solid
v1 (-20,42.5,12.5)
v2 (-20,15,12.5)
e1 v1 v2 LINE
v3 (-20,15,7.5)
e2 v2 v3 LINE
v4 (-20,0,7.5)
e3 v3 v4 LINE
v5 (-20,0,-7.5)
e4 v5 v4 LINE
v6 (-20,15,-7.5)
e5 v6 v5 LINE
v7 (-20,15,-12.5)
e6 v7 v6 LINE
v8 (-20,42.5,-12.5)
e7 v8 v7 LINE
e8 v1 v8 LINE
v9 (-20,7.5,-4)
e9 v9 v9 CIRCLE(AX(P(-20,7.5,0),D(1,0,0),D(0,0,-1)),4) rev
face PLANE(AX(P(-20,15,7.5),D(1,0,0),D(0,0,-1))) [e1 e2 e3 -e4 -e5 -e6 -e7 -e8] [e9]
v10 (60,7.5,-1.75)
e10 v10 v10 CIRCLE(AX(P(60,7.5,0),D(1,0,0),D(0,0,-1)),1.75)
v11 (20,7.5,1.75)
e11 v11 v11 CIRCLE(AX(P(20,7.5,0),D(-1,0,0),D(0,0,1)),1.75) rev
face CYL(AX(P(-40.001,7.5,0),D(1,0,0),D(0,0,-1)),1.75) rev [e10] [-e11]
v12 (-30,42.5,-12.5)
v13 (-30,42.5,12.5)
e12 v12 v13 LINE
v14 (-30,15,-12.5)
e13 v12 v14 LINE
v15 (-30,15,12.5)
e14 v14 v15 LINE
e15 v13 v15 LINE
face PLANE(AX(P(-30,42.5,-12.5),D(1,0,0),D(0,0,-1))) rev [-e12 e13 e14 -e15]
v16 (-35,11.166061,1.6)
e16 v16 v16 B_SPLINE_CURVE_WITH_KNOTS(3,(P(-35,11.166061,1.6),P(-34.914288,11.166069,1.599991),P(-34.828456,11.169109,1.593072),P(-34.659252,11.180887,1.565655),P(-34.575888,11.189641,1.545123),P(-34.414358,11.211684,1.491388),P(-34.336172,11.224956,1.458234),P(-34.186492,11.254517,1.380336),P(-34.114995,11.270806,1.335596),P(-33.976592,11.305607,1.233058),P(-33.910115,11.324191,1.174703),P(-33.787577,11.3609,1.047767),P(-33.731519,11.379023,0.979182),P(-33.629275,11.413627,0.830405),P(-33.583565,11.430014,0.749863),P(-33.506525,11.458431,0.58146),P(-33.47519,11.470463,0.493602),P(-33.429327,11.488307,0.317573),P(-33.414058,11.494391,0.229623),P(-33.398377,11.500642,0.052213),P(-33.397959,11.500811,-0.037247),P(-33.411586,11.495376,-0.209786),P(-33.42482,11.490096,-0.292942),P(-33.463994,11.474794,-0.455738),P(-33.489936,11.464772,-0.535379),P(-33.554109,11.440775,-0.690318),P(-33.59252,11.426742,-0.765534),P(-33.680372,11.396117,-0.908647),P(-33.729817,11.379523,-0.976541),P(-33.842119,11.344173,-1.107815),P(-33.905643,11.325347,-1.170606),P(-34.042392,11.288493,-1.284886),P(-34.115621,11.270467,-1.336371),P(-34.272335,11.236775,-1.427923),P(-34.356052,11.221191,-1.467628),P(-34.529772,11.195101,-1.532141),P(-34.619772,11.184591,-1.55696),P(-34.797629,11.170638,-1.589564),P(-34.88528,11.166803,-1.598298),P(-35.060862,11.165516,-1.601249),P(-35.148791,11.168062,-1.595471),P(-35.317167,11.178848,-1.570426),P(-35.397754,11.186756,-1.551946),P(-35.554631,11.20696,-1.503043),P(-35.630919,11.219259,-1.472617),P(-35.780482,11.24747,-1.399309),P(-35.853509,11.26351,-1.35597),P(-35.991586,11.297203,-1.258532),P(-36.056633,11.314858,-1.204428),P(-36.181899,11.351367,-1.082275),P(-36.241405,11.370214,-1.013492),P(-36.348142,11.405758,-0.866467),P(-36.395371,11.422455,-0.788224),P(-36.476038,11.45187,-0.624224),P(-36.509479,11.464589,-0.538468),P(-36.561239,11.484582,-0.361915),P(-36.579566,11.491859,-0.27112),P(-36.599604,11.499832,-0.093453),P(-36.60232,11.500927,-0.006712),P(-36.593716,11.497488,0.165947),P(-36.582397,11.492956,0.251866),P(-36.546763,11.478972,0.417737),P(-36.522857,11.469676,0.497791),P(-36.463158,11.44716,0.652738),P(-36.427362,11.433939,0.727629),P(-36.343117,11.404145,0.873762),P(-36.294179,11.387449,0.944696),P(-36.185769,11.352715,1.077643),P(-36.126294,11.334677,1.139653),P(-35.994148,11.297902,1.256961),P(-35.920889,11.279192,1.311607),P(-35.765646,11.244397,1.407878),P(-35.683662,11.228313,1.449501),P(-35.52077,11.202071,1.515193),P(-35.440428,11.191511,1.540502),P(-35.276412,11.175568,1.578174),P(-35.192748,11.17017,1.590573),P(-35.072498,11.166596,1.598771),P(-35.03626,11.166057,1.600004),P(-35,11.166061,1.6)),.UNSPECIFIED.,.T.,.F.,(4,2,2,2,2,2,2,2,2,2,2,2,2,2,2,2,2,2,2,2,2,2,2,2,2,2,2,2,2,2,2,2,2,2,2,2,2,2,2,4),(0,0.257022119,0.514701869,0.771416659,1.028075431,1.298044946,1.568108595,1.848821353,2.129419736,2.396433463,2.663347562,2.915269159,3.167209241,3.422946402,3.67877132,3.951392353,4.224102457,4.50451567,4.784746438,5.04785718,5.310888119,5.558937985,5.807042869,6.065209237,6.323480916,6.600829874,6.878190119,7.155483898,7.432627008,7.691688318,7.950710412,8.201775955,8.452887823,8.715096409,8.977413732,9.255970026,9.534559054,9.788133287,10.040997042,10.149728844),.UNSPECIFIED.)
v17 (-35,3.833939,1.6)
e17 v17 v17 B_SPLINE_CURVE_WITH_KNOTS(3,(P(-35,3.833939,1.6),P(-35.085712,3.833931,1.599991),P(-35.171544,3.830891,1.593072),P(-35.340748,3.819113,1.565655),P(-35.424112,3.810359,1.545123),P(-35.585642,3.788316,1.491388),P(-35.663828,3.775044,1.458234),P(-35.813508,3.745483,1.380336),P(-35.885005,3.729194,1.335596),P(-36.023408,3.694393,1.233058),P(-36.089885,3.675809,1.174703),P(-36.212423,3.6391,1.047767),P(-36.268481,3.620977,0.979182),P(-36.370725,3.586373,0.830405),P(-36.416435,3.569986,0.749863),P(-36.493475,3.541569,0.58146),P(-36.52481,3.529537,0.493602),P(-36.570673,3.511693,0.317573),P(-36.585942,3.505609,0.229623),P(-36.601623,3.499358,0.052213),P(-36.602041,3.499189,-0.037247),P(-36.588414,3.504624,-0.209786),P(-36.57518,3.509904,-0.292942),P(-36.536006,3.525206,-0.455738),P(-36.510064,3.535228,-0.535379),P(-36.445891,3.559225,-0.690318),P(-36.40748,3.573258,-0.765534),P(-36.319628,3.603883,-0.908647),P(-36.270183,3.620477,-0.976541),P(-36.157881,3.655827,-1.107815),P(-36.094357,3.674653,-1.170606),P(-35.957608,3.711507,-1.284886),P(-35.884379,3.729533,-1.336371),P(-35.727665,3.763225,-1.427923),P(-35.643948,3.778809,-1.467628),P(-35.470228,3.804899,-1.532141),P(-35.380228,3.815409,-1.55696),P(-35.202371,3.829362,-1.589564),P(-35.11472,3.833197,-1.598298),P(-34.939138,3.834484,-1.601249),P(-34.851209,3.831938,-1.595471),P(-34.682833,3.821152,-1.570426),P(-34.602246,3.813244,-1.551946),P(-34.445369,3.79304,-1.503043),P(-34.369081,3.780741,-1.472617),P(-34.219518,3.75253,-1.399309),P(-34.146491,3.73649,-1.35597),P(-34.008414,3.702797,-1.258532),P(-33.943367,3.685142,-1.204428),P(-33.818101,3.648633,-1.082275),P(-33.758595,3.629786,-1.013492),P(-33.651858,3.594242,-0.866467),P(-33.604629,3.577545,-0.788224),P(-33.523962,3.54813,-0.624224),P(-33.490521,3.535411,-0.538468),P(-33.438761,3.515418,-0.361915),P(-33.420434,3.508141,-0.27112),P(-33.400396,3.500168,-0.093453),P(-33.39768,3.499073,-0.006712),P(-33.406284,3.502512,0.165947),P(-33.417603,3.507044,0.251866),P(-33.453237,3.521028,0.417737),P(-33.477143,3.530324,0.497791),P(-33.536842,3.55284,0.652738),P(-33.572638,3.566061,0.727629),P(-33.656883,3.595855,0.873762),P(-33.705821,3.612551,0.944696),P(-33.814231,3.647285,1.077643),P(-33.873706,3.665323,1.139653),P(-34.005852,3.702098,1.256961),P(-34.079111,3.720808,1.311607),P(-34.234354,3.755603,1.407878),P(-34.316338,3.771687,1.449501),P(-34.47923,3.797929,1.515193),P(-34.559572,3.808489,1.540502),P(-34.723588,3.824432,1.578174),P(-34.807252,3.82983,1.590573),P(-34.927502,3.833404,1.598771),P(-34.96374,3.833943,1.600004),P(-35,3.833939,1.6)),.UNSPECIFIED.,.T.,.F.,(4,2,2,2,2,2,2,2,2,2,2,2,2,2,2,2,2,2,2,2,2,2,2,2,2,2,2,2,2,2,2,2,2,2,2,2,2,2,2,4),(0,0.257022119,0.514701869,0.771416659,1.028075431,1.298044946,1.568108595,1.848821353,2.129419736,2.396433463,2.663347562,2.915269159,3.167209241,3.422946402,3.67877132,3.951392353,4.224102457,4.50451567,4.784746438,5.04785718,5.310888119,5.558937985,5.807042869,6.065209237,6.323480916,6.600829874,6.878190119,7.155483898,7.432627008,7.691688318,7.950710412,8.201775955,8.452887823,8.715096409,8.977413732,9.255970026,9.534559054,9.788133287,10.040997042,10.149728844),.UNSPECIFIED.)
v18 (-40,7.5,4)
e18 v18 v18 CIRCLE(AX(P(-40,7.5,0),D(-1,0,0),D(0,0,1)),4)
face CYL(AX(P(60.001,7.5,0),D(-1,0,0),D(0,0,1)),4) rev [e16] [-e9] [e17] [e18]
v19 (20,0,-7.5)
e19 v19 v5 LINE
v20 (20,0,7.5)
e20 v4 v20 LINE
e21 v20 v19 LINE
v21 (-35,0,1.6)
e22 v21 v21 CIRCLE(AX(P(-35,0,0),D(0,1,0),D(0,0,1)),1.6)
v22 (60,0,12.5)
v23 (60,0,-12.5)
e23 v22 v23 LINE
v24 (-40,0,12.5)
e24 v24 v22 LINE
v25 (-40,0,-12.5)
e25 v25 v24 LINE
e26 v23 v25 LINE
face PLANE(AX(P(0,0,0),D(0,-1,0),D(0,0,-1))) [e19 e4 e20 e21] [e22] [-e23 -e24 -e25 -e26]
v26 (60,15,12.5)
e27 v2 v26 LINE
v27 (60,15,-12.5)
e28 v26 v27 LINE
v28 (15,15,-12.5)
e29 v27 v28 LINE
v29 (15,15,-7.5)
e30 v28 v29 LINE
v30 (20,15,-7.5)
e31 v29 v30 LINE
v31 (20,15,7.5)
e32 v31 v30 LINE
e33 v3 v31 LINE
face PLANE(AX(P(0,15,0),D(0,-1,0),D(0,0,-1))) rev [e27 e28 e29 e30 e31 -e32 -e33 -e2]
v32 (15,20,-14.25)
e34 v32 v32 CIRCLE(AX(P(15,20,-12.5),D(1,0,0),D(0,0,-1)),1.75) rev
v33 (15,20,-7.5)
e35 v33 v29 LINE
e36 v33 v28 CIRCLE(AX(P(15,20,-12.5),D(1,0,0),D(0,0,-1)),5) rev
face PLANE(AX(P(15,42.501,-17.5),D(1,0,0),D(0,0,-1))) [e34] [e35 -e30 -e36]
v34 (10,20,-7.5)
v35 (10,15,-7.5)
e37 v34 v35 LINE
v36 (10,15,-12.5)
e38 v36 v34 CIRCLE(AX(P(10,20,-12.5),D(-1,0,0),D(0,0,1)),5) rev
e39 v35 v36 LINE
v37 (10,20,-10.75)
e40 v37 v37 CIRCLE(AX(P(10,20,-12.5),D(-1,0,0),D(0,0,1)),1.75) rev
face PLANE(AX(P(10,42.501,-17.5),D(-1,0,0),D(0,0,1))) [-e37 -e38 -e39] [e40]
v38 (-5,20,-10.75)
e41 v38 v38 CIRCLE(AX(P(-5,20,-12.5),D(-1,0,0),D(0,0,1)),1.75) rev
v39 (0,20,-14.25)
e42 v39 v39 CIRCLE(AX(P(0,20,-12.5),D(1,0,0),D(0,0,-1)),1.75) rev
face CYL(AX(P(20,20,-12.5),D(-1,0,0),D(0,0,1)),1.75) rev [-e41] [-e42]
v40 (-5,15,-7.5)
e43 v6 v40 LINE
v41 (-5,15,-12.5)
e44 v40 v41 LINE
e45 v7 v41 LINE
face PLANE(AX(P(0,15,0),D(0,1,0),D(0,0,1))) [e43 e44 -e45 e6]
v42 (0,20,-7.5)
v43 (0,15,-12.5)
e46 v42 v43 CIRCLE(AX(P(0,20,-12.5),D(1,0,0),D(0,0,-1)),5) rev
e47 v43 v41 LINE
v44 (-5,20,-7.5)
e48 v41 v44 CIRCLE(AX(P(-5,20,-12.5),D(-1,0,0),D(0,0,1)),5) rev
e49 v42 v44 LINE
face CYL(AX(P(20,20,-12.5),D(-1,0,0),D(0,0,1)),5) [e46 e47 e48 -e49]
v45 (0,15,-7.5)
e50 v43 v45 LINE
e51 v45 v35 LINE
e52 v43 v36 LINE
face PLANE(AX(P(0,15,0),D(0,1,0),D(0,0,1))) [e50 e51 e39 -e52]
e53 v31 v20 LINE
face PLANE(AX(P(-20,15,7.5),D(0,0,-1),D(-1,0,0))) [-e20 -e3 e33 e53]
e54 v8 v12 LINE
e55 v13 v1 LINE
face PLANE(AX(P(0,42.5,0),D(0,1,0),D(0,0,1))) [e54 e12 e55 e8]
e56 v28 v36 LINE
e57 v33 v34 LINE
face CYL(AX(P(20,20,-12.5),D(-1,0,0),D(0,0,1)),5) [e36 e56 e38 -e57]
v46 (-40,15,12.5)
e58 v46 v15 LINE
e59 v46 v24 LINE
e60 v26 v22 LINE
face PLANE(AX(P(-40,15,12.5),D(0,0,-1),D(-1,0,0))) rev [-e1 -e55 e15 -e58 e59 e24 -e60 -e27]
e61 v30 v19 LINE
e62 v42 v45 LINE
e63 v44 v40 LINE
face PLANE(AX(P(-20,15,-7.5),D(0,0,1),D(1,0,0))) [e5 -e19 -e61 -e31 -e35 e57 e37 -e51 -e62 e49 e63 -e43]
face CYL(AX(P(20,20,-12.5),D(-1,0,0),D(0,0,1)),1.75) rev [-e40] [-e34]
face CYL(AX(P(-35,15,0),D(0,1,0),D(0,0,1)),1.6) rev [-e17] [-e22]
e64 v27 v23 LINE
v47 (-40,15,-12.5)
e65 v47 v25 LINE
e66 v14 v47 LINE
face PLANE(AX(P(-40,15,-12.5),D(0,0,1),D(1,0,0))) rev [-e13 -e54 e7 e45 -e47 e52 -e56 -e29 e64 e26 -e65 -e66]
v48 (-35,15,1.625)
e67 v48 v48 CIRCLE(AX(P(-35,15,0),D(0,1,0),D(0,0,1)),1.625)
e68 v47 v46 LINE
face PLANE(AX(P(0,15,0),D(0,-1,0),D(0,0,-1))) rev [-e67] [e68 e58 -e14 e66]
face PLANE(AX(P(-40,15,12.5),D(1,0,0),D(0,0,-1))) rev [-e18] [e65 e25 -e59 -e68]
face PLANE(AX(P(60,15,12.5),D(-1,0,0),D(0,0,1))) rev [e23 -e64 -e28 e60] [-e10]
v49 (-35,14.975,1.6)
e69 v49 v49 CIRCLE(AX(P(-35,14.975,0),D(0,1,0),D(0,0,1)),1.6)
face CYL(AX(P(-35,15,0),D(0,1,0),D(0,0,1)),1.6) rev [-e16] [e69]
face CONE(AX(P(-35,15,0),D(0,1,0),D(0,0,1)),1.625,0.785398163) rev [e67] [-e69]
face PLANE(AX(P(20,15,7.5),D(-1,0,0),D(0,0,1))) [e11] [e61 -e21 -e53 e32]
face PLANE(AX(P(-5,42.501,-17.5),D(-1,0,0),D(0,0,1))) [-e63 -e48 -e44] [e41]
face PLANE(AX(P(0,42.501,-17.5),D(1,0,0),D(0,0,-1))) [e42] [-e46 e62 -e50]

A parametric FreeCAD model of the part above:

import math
import FreeCAD as App
import Part
import Sketcher

V = App.Vector
Q = App.Units.Quantity

doc = App.newDocument("Part")
body = doc.addObject("PartDesign::Body", "Body")

sketch1 = body.newObject("Sketcher::SketchObject", "Sketch")
sketch1.AttachmentSupport = (doc.getObject("XZ_Plane"), [""])
sketch1.MapMode = "FlatFace"
sketch1.addGeometry([
    Part.LineSegment(V(-40, -12.5, 0), V(-40, 12.5, 0)),
    Part.LineSegment(V(-40, 12.5, 0), V(60, 12.5, 0)),
    Part.LineSegment(V(60, 12.5, 0), V(60, -12.5, 0)),
    Part.LineSegment(V(60, -12.5, 0), V(-40, -12.5, 0)),
    Part.LineSegment(V(20, 7.5, 0), V(-20, 7.5, 0)),
    Part.LineSegment(V(-20, 7.5, 0), V(-20, -7.5, 0)),
    Part.LineSegment(V(-20, -7.5, 0), V(20, -7.5, 0)),
    Part.LineSegment(V(20, -7.5, 0), V(20, 7.5, 0)),
], False)
sketch1.addConstraint([
    Sketcher.Constraint("Coincident", 0, 2, 1, 1),
    Sketcher.Constraint("Coincident", 1, 2, 2, 1),
    Sketcher.Constraint("Coincident", 2, 2, 3, 1),
    Sketcher.Constraint("Coincident", 3, 2, 0, 1),
    Sketcher.Constraint("Coincident", 4, 2, 5, 1),
    Sketcher.Constraint("Coincident", 5, 2, 6, 1),
    Sketcher.Constraint("Coincident", 6, 2, 7, 1),
    Sketcher.Constraint("Coincident", 7, 2, 4, 1),
    Sketcher.Constraint("Vertical", 0),
    Sketcher.Constraint("Horizontal", 1),
    Sketcher.Constraint("Vertical", 2),
    Sketcher.Constraint("Horizontal", 3),
    Sketcher.Constraint("Horizontal", 4),
    Sketcher.Constraint("Vertical", 5),
    Sketcher.Constraint("Horizontal", 6),
    Sketcher.Constraint("Vertical", 7),
    Sketcher.Constraint("Symmetric", 4, 2, 6, 2, -1, 1),
    Sketcher.Constraint("DistanceX", 1, 1, 1, 2, Q("100 mm")),
    Sketcher.Constraint("DistanceX", 4, 2, 4, 1, Q("40 mm")),
    Sketcher.Constraint("DistanceY", 0, 1, 0, 2, Q("25 mm")),
    Sketcher.Constraint("DistanceY", 5, 2, 5, 1, Q("15 mm")),
    Sketcher.Constraint("DistanceX", 0, 2, -1, 1, Q("40 mm")),
    Sketcher.Constraint("DistanceY", 4, 2, 0, 2, Q("5 mm")),
])
pad1 = body.newObject("PartDesign::Pad", "Pad")
pad1.Profile = sketch1
pad1.Length = 15
pad1.Reversed = True

sketch2 = body.newObject("Sketcher::SketchObject", "Sketch001")
sketch2.AttachmentSupport = (doc.getObject("YZ_Plane"), [""])
sketch2.MapMode = "FlatFace"
sketch2.AttachmentOffset = App.Placement(V(0, 0, 60), App.Rotation())
sketch2.addGeometry(Part.Circle(V(7.5, 0, 0), V(0, 0, 1), 1.75), False)
sketch2.addConstraint([
    Sketcher.Constraint("PointOnObject", 0, 3, -1),
    Sketcher.Constraint("Diameter", 0, Q("3.5 mm")),
    Sketcher.Constraint("DistanceX", -1, 1, 0, 3, Q("7.5 mm")),
])
pocket1 = body.newObject("PartDesign::Pocket", "Pocket")
pocket1.Profile = sketch2
pocket1.Type = "UpToFirst"

sketch3 = body.newObject("Sketcher::SketchObject", "Sketch002")
sketch3.AttachmentSupport = (doc.getObject("YZ_Plane"), [""])
sketch3.MapMode = "FlatFace"
sketch3.AttachmentOffset = App.Placement(V(0, 0, -40), App.Rotation())
sketch3.addGeometry(Part.Circle(V(7.5, 0, 0), V(0, 0, 1), 4), False)
sketch3.addConstraint([
    Sketcher.Constraint("PointOnObject", 0, 3, -1),
    Sketcher.Constraint("Diameter", 0, Q("8 mm")),
    Sketcher.Constraint("DistanceX", -1, 1, 0, 3, Q("7.5 mm")),
])
pocket2 = body.newObject("PartDesign::Pocket", "Pocket001")
pocket2.Profile = sketch3
pocket2.Type = "UpToFirst"
pocket2.Reversed = True

sketch4 = body.newObject("Sketcher::SketchObject", "Sketch003")
sketch4.AttachmentSupport = (doc.getObject("XZ_Plane"), [""])
sketch4.MapMode = "FlatFace"
sketch4.AttachmentOffset = App.Placement(V(0, 0, -15), App.Rotation())
sketch4.addGeometry(Part.Circle(V(-35, 0, 0), V(0, 0, 1), 1.6), False)
sketch4.addConstraint([
    Sketcher.Constraint("PointOnObject", 0, 3, -1),
    Sketcher.Constraint("Diameter", 0, Q("3.2 mm")),
    Sketcher.Constraint("DistanceX", 0, 3, -1, 1, Q("35 mm")),
])
doc.recompute()
hole = body.newObject("PartDesign::Hole", "Hole")
hole.Profile = sketch4
hole.ThreadType = "None"
hole.Diameter = 3.2
hole.DepthType = "ThroughAll"
hole.HoleCutType = "Countersink"
hole.HoleCutDiameter = 3.25
hole.HoleCutCountersinkAngle = 90
hole.Reversed = True

sketch5 = body.newObject("Sketcher::SketchObject", "Sketch004")
sketch5.AttachmentSupport = (doc.getObject("XZ_Plane"), [""])
sketch5.MapMode = "FlatFace"
sketch5.AttachmentOffset = App.Placement(V(0, 0, -15), App.Rotation())
sketch5.addGeometry([
    Part.LineSegment(V(-30, -12.5, 0), V(-30, 12.5, 0)),
    Part.LineSegment(V(-30, 12.5, 0), V(-20, 12.5, 0)),
    Part.LineSegment(V(-20, 12.5, 0), V(-20, -12.5, 0)),
    Part.LineSegment(V(-20, -12.5, 0), V(-30, -12.5, 0)),
], False)
sketch5.addConstraint([
    Sketcher.Constraint("Coincident", 0, 2, 1, 1),
    Sketcher.Constraint("Coincident", 1, 2, 2, 1),
    Sketcher.Constraint("Coincident", 2, 2, 3, 1),
    Sketcher.Constraint("Coincident", 3, 2, 0, 1),
    Sketcher.Constraint("Vertical", 0),
    Sketcher.Constraint("Horizontal", 1),
    Sketcher.Constraint("Vertical", 2),
    Sketcher.Constraint("Horizontal", 3),
    Sketcher.Constraint("DistanceX", 1, 1, 1, 2, Q("10 mm")),
    Sketcher.Constraint("DistanceY", 0, 1, 0, 2, Q("25 mm")),
    Sketcher.Constraint("DistanceX", 0, 2, -1, 1, Q("30 mm")),
    Sketcher.Constraint("DistanceY", -1, 1, 0, 2, Q("12.5 mm")),
])
pad2 = body.newObject("PartDesign::Pad", "Pad001")
pad2.Profile = sketch5
pad2.Length = 27.5
pad2.Reversed = True

sketch6 = body.newObject("Sketcher::SketchObject", "Sketch005")
sketch6.AttachmentSupport = (doc.getObject("YZ_Plane"), [""])
sketch6.MapMode = "FlatFace"
sketch6.AttachmentOffset = App.Placement(V(0, 0, -20), App.Rotation())
sketch6.addGeometry([
    Part.LineSegment(V(20, -7.5, 0), V(15, -7.5, 0)),
    Part.LineSegment(V(15, -7.5, 0), V(15, -12.5, 0)),
    Part.ArcOfCircle(Part.Circle(V(20, -12.5, 0), V(0, 0, 1), 5), math.radians(180), math.radians(450)),
    Part.Circle(V(20, -12.5, 0), V(0, 0, 1), 1.75),
], False)
sketch6.addConstraint([
    Sketcher.Constraint("Coincident", 0, 2, 1, 1),
    Sketcher.Constraint("Tangent", 1, 2, 2, 1),
    Sketcher.Constraint("Tangent", 2, 2, 0, 1),
    Sketcher.Constraint("Horizontal", 0),
    Sketcher.Constraint("Vertical", 1),
    Sketcher.Constraint("Coincident", 3, 3, 2, 3),
    Sketcher.Constraint("Radius", 2, Q("5 mm")),
    Sketcher.Constraint("Diameter", 3, Q("3.5 mm")),
    Sketcher.Constraint("DistanceX", -1, 1, 2, 3, Q("20 mm")),
    Sketcher.Constraint("DistanceY", 2, 3, -1, 1, Q("12.5 mm")),
])
pad3 = body.newObject("PartDesign::Pad", "Pad002")
pad3.Profile = sketch6
pad3.Length = 40

sketch7 = body.newObject("Sketcher::SketchObject", "Sketch006")
sketch7.AttachmentSupport = (doc.getObject("XZ_Plane"), [""])
sketch7.MapMode = "FlatFace"
sketch7.AttachmentOffset = App.Placement(V(0, 0, -15), App.Rotation())
sketch7.addGeometry([
    Part.LineSegment(V(-20, -17.5, 0), V(-20, -7.5, 0)),
    Part.LineSegment(V(-20, -7.5, 0), V(-5, -7.5, 0)),
    Part.LineSegment(V(-5, -7.5, 0), V(-5, -17.5, 0)),
    Part.LineSegment(V(-5, -17.5, 0), V(-20, -17.5, 0)),
], False)
sketch7.addConstraint([
    Sketcher.Constraint("Coincident", 0, 2, 1, 1),
    Sketcher.Constraint("Coincident", 1, 2, 2, 1),
    Sketcher.Constraint("Coincident", 2, 2, 3, 1),
    Sketcher.Constraint("Coincident", 3, 2, 0, 1),
    Sketcher.Constraint("Vertical", 0),
    Sketcher.Constraint("Horizontal", 1),
    Sketcher.Constraint("Vertical", 2),
    Sketcher.Constraint("Horizontal", 3),
    Sketcher.Constraint("DistanceX", 1, 1, 1, 2, Q("15 mm")),
    Sketcher.Constraint("DistanceY", 0, 1, 0, 2, Q("10 mm")),
    Sketcher.Constraint("DistanceX", 0, 2, -1, 1, Q("20 mm")),
    Sketcher.Constraint("DistanceY", 0, 2, -1, 1, Q("7.5 mm")),
])
pocket3 = body.newObject("PartDesign::Pocket", "Pocket002")
pocket3.Profile = sketch7
pocket3.Type = "UpToFirst"

sketch8 = body.newObject("Sketcher::SketchObject", "Sketch007")
sketch8.AttachmentSupport = (doc.getObject("XZ_Plane"), [""])
sketch8.MapMode = "FlatFace"
sketch8.AttachmentOffset = App.Placement(V(0, 0, -15), App.Rotation())
sketch8.addGeometry([
    Part.LineSegment(V(0, -17.5, 0), V(0, -7.5, 0)),
    Part.LineSegment(V(0, -7.5, 0), V(10, -7.5, 0)),
    Part.LineSegment(V(10, -7.5, 0), V(10, -17.5, 0)),
    Part.LineSegment(V(10, -17.5, 0), V(0, -17.5, 0)),
], False)
sketch8.addConstraint([
    Sketcher.Constraint("Coincident", 0, 2, 1, 1),
    Sketcher.Constraint("Coincident", 1, 2, 2, 1),
    Sketcher.Constraint("Coincident", 2, 2, 3, 1),
    Sketcher.Constraint("Coincident", 3, 2, 0, 1),
    Sketcher.Constraint("Vertical", 0),
    Sketcher.Constraint("Horizontal", 1),
    Sketcher.Constraint("Vertical", 2),
    Sketcher.Constraint("Horizontal", 3),
    Sketcher.Constraint("PointOnObject", 0, 2, -2),
    Sketcher.Constraint("Equal", 3, 0),
    Sketcher.Constraint("DistanceX", 1, 1, 1, 2, Q("10 mm")),
    Sketcher.Constraint("DistanceY", 0, 2, -1, 1, Q("7.5 mm")),
])
pocket4 = body.newObject("PartDesign::Pocket", "Pocket003")
pocket4.Profile = sketch8
pocket4.Type = "UpToFirst"

sketch9 = body.newObject("Sketcher::SketchObject", "Sketch008")
sketch9.AttachmentSupport = (doc.getObject("XZ_Plane"), [""])
sketch9.MapMode = "FlatFace"
sketch9.AttachmentOffset = App.Placement(V(0, 0, -15), App.Rotation())
sketch9.addGeometry([
    Part.LineSegment(V(15, -17.5, 0), V(15, -7.5, 0)),
    Part.LineSegment(V(15, -7.5, 0), V(20, -7.5, 0)),
    Part.LineSegment(V(20, -7.5, 0), V(20, -17.5, 0)),
    Part.LineSegment(V(20, -17.5, 0), V(15, -17.5, 0)),
], False)
sketch9.addConstraint([
    Sketcher.Constraint("Coincident", 0, 2, 1, 1),
    Sketcher.Constraint("Coincident", 1, 2, 2, 1),
    Sketcher.Constraint("Coincident", 2, 2, 3, 1),
    Sketcher.Constraint("Coincident", 3, 2, 0, 1),
    Sketcher.Constraint("Vertical", 0),
    Sketcher.Constraint("Horizontal", 1),
    Sketcher.Constraint("Vertical", 2),
    Sketcher.Constraint("Horizontal", 3),
    Sketcher.Constraint("DistanceX", 1, 1, 1, 2, Q("5 mm")),
    Sketcher.Constraint("DistanceY", 0, 1, 0, 2, Q("10 mm")),
    Sketcher.Constraint("DistanceX", -1, 1, 0, 2, Q("15 mm")),
    Sketcher.Constraint("DistanceY", 0, 2, -1, 1, Q("7.5 mm")),
])
pocket5 = body.newObject("PartDesign::Pocket", "Pocket004")
pocket5.Profile = sketch9
pocket5.Type = "UpToFirst"

doc.recompute()
